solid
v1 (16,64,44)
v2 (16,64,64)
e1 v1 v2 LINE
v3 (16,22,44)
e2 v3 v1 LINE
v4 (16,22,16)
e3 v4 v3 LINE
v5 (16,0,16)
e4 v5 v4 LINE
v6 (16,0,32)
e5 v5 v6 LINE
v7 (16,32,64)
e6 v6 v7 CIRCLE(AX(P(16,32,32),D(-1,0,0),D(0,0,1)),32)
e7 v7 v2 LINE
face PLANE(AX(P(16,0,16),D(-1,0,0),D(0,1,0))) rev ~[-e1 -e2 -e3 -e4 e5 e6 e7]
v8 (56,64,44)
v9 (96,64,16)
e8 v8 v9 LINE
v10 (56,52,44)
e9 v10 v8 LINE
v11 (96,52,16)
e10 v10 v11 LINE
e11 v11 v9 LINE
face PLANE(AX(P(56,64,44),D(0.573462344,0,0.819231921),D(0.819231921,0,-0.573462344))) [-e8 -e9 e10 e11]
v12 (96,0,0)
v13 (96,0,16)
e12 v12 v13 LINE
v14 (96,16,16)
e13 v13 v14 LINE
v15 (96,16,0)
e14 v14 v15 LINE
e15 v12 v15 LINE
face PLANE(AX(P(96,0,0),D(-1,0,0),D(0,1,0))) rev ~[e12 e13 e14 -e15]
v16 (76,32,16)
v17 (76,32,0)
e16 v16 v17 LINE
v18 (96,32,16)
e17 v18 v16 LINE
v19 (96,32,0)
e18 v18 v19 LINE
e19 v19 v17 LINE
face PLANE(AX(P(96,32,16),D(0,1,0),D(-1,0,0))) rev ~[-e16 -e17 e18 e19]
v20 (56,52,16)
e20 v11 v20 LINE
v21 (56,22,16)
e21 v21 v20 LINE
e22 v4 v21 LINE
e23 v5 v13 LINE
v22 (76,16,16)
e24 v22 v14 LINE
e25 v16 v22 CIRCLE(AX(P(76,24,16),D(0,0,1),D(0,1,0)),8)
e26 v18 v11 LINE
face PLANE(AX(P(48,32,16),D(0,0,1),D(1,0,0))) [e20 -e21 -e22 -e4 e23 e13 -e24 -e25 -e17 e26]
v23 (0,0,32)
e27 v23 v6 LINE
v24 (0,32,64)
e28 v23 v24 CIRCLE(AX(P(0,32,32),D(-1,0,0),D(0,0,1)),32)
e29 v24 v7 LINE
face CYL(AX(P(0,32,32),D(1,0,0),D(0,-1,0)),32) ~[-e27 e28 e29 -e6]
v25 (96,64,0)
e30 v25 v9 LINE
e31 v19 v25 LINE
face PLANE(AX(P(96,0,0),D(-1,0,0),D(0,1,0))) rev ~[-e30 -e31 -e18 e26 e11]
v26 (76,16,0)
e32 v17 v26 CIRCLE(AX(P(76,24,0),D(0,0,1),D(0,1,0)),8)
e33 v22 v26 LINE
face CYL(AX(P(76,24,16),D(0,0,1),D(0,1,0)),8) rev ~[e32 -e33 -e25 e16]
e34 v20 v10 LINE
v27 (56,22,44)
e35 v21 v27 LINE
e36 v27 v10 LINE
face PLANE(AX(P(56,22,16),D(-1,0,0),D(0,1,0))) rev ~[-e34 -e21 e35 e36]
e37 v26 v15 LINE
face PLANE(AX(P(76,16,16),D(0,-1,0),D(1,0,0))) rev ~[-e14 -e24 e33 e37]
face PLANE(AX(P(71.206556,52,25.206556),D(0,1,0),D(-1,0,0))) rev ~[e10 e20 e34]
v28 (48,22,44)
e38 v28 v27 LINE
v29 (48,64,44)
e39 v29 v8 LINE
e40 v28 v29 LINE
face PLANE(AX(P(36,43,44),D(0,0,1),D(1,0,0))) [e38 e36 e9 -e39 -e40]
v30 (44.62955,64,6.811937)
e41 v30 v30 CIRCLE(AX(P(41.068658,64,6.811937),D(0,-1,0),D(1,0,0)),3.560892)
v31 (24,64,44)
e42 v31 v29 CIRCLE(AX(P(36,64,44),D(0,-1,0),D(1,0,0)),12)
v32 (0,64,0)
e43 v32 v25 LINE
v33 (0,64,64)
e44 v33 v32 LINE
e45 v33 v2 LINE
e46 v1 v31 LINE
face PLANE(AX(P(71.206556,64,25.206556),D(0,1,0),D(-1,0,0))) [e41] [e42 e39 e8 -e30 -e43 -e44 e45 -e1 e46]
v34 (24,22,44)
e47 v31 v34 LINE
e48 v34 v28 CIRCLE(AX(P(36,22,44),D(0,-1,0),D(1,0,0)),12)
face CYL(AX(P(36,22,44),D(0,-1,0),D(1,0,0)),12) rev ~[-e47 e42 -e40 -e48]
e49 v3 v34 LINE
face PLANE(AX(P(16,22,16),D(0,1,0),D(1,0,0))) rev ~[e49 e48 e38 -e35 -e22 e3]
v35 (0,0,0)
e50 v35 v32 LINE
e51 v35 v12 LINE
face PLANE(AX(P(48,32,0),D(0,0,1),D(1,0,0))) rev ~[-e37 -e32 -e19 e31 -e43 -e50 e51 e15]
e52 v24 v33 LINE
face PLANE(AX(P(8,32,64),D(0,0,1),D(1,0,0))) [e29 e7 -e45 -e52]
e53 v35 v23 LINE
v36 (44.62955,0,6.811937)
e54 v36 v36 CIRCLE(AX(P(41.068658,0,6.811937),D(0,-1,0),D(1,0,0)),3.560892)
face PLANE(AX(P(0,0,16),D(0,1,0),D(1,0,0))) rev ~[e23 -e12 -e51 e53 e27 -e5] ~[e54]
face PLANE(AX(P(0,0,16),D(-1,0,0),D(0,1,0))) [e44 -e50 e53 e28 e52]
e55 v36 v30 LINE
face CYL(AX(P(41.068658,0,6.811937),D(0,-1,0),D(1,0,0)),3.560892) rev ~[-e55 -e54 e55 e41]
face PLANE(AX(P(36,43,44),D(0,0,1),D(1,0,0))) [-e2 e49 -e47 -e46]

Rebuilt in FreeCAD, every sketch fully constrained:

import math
import FreeCAD as App
import Part
import Sketcher

V = App.Vector


def edges_at(feature, points):
    """Names of the edges that pass closest to the given points."""
    edges = feature.Shape.Edges
    near = lambda p: min(range(len(edges)), key=lambda i: edges[i].distToShape(Part.Vertex(*p))[0])
    return sorted({f"Edge{near(p) + 1}" for p in points})

doc = App.newDocument("Part")
body = doc.addObject("PartDesign::Body", "Body")

# Sketch on XY plane
sketch1 = body.newObject("Sketcher::SketchObject", "Sketch")
sketch1.AttachmentSupport = (doc.getObject("XY_Plane"), [""])
sketch1.MapMode = "FlatFace"
sketch1.addGeometry(Part.LineSegment(V(0, 64, 0), V(0, 0, 0)), False)
sketch1.addGeometry(Part.LineSegment(V(0, 0, 0), V(96, 0, 0)), False)
sketch1.addGeometry(Part.LineSegment(V(96, 0, 0), V(96, 64, 0)), False)
sketch1.addGeometry(Part.LineSegment(V(96, 64, 0), V(0, 64, 0)), False)
sketch1.addConstraint(Sketcher.Constraint("Coincident", 0, 2, 1, 1))
sketch1.addConstraint(Sketcher.Constraint("Coincident", 1, 2, 2, 1))
sketch1.addConstraint(Sketcher.Constraint("Coincident", 2, 2, 3, 1))
sketch1.addConstraint(Sketcher.Constraint("Coincident", 3, 2, 0, 1))
sketch1.addConstraint(Sketcher.Constraint("Vertical", 0))
sketch1.addConstraint(Sketcher.Constraint("Horizontal", 1))
sketch1.addConstraint(Sketcher.Constraint("Vertical", 2))
sketch1.addConstraint(Sketcher.Constraint("Horizontal", 3))
sketch1.addConstraint(Sketcher.Constraint("Coincident", 0, 2, -1, 1))
sketch1.addConstraint(Sketcher.Constraint("DistanceX", 1, 1, 1, 2, 96.0))
sketch1.addConstraint(Sketcher.Constraint("DistanceY", 0, 2, 0, 1, 64.0))
pad1 = body.newObject("PartDesign::Pad", "Pad")
pad1.Profile = sketch1
pad1.Length = 16

# Sketch on XY plane
sketch2 = body.newObject("Sketcher::SketchObject", "Sketch001")
sketch2.AttachmentSupport = (doc.getObject("XY_Plane"), [""])
sketch2.MapMode = "FlatFace"
sketch2.AttachmentOffset = App.Placement(V(0, 0, 16), App.Rotation())
sketch2.addGeometry(Part.ArcOfCircle(Part.Circle(V(76, 24, 0), V(0, 0, 1), 8), math.radians(90), math.radians(270)), False)
sketch2.addGeometry(Part.LineSegment(V(76, 16, 0), V(96, 16, 0)), False)
sketch2.addGeometry(Part.LineSegment(V(96, 16, 0), V(96, 32, 0)), False)
sketch2.addGeometry(Part.LineSegment(V(96, 32, 0), V(76, 32, 0)), False)
sketch2.addConstraint(Sketcher.Constraint("Tangent", 0, 2, 1, 1))
sketch2.addConstraint(Sketcher.Constraint("Coincident", 1, 2, 2, 1))
sketch2.addConstraint(Sketcher.Constraint("Coincident", 2, 2, 3, 1))
sketch2.addConstraint(Sketcher.Constraint("Tangent", 3, 2, 0, 1))
sketch2.addConstraint(Sketcher.Constraint("Horizontal", 1))
sketch2.addConstraint(Sketcher.Constraint("Vertical", 2))
sketch2.addConstraint(Sketcher.Constraint("Horizontal", 3))
sketch2.addConstraint(Sketcher.Constraint("Radius", 0, 8.0))
sketch2.addConstraint(Sketcher.Constraint("DistanceX", 1, 1, 1, 2, 20.0))
sketch2.addConstraint(Sketcher.Constraint("DistanceX", -1, 1, 0, 3, 76.0))
sketch2.addConstraint(Sketcher.Constraint("DistanceY", -1, 1, 0, 3, 24.0))
pocket1 = body.newObject("PartDesign::Pocket", "Pocket")
pocket1.Profile = sketch2
pocket1.Type = "ThroughAll"

# Sketch on XY plane
sketch3 = body.newObject("Sketcher::SketchObject", "Sketch002")
sketch3.AttachmentSupport = (doc.getObject("XY_Plane"), [""])
sketch3.MapMode = "FlatFace"
sketch3.AttachmentOffset = App.Placement(V(0, 0, 16), App.Rotation())
sketch3.addGeometry(Part.LineSegment(V(0, 64, 0), V(0, 0, 0)), False)
sketch3.addGeometry(Part.LineSegment(V(0, 0, 0), V(16, 0, 0)), False)
sketch3.addGeometry(Part.LineSegment(V(16, 0, 0), V(16, 64, 0)), False)
sketch3.addGeometry(Part.LineSegment(V(16, 64, 0), V(0, 64, 0)), False)
sketch3.addConstraint(Sketcher.Constraint("Coincident", 0, 2, 1, 1))
sketch3.addConstraint(Sketcher.Constraint("Coincident", 1, 2, 2, 1))
sketch3.addConstraint(Sketcher.Constraint("Coincident", 2, 2, 3, 1))
sketch3.addConstraint(Sketcher.Constraint("Coincident", 3, 2, 0, 1))
sketch3.addConstraint(Sketcher.Constraint("Vertical", 0))
sketch3.addConstraint(Sketcher.Constraint("Horizontal", 1))
sketch3.addConstraint(Sketcher.Constraint("Vertical", 2))
sketch3.addConstraint(Sketcher.Constraint("Horizontal", 3))
sketch3.addConstraint(Sketcher.Constraint("Coincident", 0, 2, -1, 1))
sketch3.addConstraint(Sketcher.Constraint("DistanceX", 1, 1, 1, 2, 16.0))
sketch3.addConstraint(Sketcher.Constraint("DistanceY", 0, 2, 0, 1, 64.0))
pad2 = body.newObject("PartDesign::Pad", "Pad001")
pad2.Profile = sketch3
pad2.Length = 48
doc.recompute()

fillet = body.newObject("PartDesign::Fillet", "Fillet")
fillet.Base = (pad2, edges_at(pad2, [(8, 0, 64)]))
fillet.Radius = 32

# Sketch on XY plane
sketch4 = body.newObject("Sketcher::SketchObject", "Sketch003")
sketch4.AttachmentSupport = (doc.getObject("XY_Plane"), [""])
sketch4.MapMode = "FlatFace"
sketch4.AttachmentOffset = App.Placement(V(0, 0, 16), App.Rotation())
sketch4.addGeometry(Part.LineSegment(V(16, 64, 0), V(16, 22, 0)), False)
sketch4.addGeometry(Part.LineSegment(V(16, 22, 0), V(56, 22, 0)), False)
sketch4.addGeometry(Part.LineSegment(V(56, 22, 0), V(56, 64, 0)), False)
sketch4.addGeometry(Part.LineSegment(V(56, 64, 0), V(16, 64, 0)), False)
sketch4.addConstraint(Sketcher.Constraint("Coincident", 0, 2, 1, 1))
sketch4.addConstraint(Sketcher.Constraint("Coincident", 1, 2, 2, 1))
sketch4.addConstraint(Sketcher.Constraint("Coincident", 2, 2, 3, 1))
sketch4.addConstraint(Sketcher.Constraint("Coincident", 3, 2, 0, 1))
sketch4.addConstraint(Sketcher.Constraint("Vertical", 0))
sketch4.addConstraint(Sketcher.Constraint("Horizontal", 1))
sketch4.addConstraint(Sketcher.Constraint("Vertical", 2))
sketch4.addConstraint(Sketcher.Constraint("Horizontal", 3))
sketch4.addConstraint(Sketcher.Constraint("DistanceX", 1, 1, 1, 2, 40.0))
sketch4.addConstraint(Sketcher.Constraint("DistanceY", 0, 2, 0, 1, 42.0))
sketch4.addConstraint(Sketcher.Constraint("DistanceX", -1, 1, 0, 2, 16.0))
sketch4.addConstraint(Sketcher.Constraint("DistanceY", -1, 1, 0, 2, 22.0))
pad3 = body.newObject("PartDesign::Pad", "Pad002")
pad3.Profile = sketch4
pad3.Length = 28

# Sketch on XZ plane
sketch5 = body.newObject("Sketcher::SketchObject", "Sketch004")
sketch5.AttachmentSupport = (doc.getObject("XZ_Plane"), [""])
sketch5.MapMode = "FlatFace"
sketch5.AttachmentOffset = App.Placement(V(0, 0, -22), App.Rotation())
sketch5.addGeometry(Part.Circle(V(36, 44, 0), V(0, 0, 1), 12), False)
sketch5.addConstraint(Sketcher.Constraint("Diameter", 0, 24.0))
sketch5.addConstraint(Sketcher.Constraint("DistanceX", -1, 1, 0, 3, 36.0))
sketch5.addConstraint(Sketcher.Constraint("DistanceY", -1, 1, 0, 3, 44.0))
pocket2 = body.newObject("PartDesign::Pocket", "Pocket001")
pocket2.Profile = sketch5
pocket2.Type = "ThroughAll"

# Sketch on XZ plane
sketch6 = body.newObject("Sketcher::SketchObject", "Sketch005")
sketch6.AttachmentSupport = (doc.getObject("XZ_Plane"), [""])
sketch6.MapMode = "FlatFace"
sketch6.AttachmentOffset = App.Placement(V(0, 0, -64), App.Rotation())
sketch6.addGeometry(Part.LineSegment(V(56, 16, 0), V(56, 44, 0)), False)
sketch6.addGeometry(Part.LineSegment(V(56, 44, 0), V(96, 16, 0)), False)
sketch6.addGeometry(Part.LineSegment(V(96, 16, 0), V(56, 16, 0)), False)
sketch6.addConstraint(Sketcher.Constraint("Coincident", 0, 2, 1, 1))
sketch6.addConstraint(Sketcher.Constraint("Coincident", 1, 2, 2, 1))
sketch6.addConstraint(Sketcher.Constraint("Coincident", 2, 2, 0, 1))
sketch6.addConstraint(Sketcher.Constraint("Vertical", 0))
sketch6.addConstraint(Sketcher.Constraint("Horizontal", 2))
sketch6.addConstraint(Sketcher.Constraint("DistanceX", 2, 2, 2, 1, 40.0))
sketch6.addConstraint(Sketcher.Constraint("DistanceY", 0, 1, 0, 2, 28.0))
sketch6.addConstraint(Sketcher.Constraint("DistanceX", -1, 1, 0, 2, 56.0))
sketch6.addConstraint(Sketcher.Constraint("DistanceY", -1, 1, 0, 2, 44.0))
pad4 = body.newObject("PartDesign::Pad", "Pad003")
pad4.Profile = sketch6
pad4.Length = 12

# Sketch on XZ plane
sketch7 = body.newObject("Sketcher::SketchObject", "Sketch006")
sketch7.AttachmentSupport = (doc.getObject("XZ_Plane"), [""])
sketch7.MapMode = "FlatFace"
sketch7.addGeometry(Part.Circle(V(41.1, 6.8, 0), V(0, 0, 1), 3.6), False)
sketch7.addConstraint(Sketcher.Constraint("Diameter", 0, 7.121784))
sketch7.addConstraint(Sketcher.Constraint("DistanceX", -1, 1, 0, 3, 41.068658))
sketch7.addConstraint(Sketcher.Constraint("DistanceY", -1, 1, 0, 3, 6.811937))
pocket3 = body.newObject("PartDesign::Pocket", "Pocket002")
pocket3.Profile = sketch7
pocket3.Type = "ThroughAll"

doc.recompute()
